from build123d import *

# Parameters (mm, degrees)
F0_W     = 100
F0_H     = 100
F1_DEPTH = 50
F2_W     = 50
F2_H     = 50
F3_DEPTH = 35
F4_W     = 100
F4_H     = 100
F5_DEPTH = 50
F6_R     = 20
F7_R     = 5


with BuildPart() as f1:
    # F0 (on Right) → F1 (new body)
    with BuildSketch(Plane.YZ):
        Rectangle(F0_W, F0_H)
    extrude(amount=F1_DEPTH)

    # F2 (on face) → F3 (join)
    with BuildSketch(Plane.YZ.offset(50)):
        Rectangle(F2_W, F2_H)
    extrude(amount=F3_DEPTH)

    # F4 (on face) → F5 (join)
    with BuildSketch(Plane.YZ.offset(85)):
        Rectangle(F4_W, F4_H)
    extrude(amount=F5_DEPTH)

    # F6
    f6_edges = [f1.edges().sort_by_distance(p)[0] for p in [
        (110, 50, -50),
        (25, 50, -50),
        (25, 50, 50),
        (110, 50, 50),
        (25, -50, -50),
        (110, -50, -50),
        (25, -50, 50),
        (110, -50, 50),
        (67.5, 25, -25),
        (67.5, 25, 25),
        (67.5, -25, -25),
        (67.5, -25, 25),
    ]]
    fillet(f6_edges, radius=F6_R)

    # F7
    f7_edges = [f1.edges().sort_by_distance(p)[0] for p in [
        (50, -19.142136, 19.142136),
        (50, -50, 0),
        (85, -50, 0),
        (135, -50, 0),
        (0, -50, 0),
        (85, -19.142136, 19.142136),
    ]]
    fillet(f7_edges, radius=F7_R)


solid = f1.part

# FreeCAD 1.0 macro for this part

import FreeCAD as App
import Part
import Sketcher

V = App.Vector
Q = App.Units.Quantity


def edges_at(feature, points):
    """Names of the edges that pass closest to the given points."""
    edges = feature.Shape.Edges
    near = lambda p: min(range(len(edges)), key=lambda i: edges[i].distToShape(Part.Vertex(*p))[0])
    return sorted({f"Edge{near(p) + 1}" for p in points})


def add_polygon(sketch, points):
    """Adds a closed chain of lines whose ends are joined by coincident constraints."""
    first, n = sketch.GeometryCount, len(points)
    for a, b in zip(points, points[1:] + points[:1]):
        sketch.addGeometry(Part.LineSegment(App.Vector(*a, 0), App.Vector(*b, 0)), False)
    for i in range(n):
        sketch.addConstraint(Sketcher.Constraint("Coincident", first + i, 2, first + (i + 1) % n, 1))

doc = App.newDocument("Part")
body = doc.addObject("PartDesign::Body", "Body")

# Sketch on YZ plane
sketch1 = body.newObject("Sketcher::SketchObject", "Sketch")
sketch1.AttachmentSupport = (doc.getObject("YZ_Plane"), [""])
sketch1.MapMode = "FlatFace"
add_polygon(sketch1, [(-50, 50), (-50, -50), (50, -50), (50, 50)])  # lines 0-3
sketch1.addConstraint(Sketcher.Constraint("Vertical", 0))
sketch1.addConstraint(Sketcher.Constraint("Horizontal", 1))
sketch1.addConstraint(Sketcher.Constraint("Vertical", 2))
sketch1.addConstraint(Sketcher.Constraint("Horizontal", 3))
sketch1.addConstraint(Sketcher.Constraint("Symmetric", 0, 2, 2, 2, -1, 1))
sketch1.addConstraint(Sketcher.Constraint("Equal", 3, 0))
sketch1.addConstraint(Sketcher.Constraint("DistanceX", 1, 1, 1, 2, Q("100 mm")))
pad1 = body.newObject("PartDesign::Pad", "Pad")
pad1.Profile = sketch1
pad1.Length = 50

# Sketch on YZ plane
sketch2 = body.newObject("Sketcher::SketchObject", "Sketch001")
sketch2.AttachmentSupport = (doc.getObject("YZ_Plane"), [""])
sketch2.MapMode = "FlatFace"
sketch2.AttachmentOffset = App.Placement(V(0, 0, 50), App.Rotation())
add_polygon(sketch2, [(-25, 25), (-25, -25), (25, -25), (25, 25)])  # lines 0-3
sketch2.addConstraint(Sketcher.Constraint("Vertical", 0))
sketch2.addConstraint(Sketcher.Constraint("Horizontal", 1))
sketch2.addConstraint(Sketcher.Constraint("Vertical", 2))
sketch2.addConstraint(Sketcher.Constraint("Horizontal", 3))
sketch2.addConstraint(Sketcher.Constraint("Symmetric", 0, 2, 2, 2, -1, 1))
sketch2.addConstraint(Sketcher.Constraint("Equal", 3, 0))
sketch2.addConstraint(Sketcher.Constraint("DistanceX", 1, 1, 1, 2, Q("50 mm")))
pad2 = body.newObject("PartDesign::Pad", "Pad001")
pad2.Profile = sketch2
pad2.Length = 35

# Sketch on YZ plane
sketch3 = body.newObject("Sketcher::SketchObject", "Sketch002")
sketch3.AttachmentSupport = (doc.getObject("YZ_Plane"), [""])
sketch3.MapMode = "FlatFace"
sketch3.AttachmentOffset = App.Placement(V(0, 0, 85), App.Rotation())
add_polygon(sketch3, [(-50, 50), (-50, -50), (50, -50), (50, 50)])  # lines 0-3
sketch3.addConstraint(Sketcher.Constraint("Vertical", 0))
sketch3.addConstraint(Sketcher.Constraint("Horizontal", 1))
sketch3.addConstraint(Sketcher.Constraint("Vertical", 2))
sketch3.addConstraint(Sketcher.Constraint("Horizontal", 3))
sketch3.addConstraint(Sketcher.Constraint("Symmetric", 0, 2, 2, 2, -1, 1))
sketch3.addConstraint(Sketcher.Constraint("Equal", 3, 0))
sketch3.addConstraint(Sketcher.Constraint("DistanceX", 1, 1, 1, 2, Q("100 mm")))
pad3 = body.newObject("PartDesign::Pad", "Pad002")
pad3.Profile = sketch3
pad3.Length = 50
doc.recompute()

fillet = body.newObject("PartDesign::Fillet", "Fillet")
fillet.Base = (pad3, edges_at(pad3, [
    (110, 50, -50),
    (25, 50, -50),
    (25, 50, 50),
    (110, 50, 50),
    (25, -50, -50),
    (110, -50, -50),
    (25, -50, 50),
    (110, -50, 50),
    (67.5, 25, -25),
    (67.5, 25, 25),
    (67.5, -25, -25),
    (67.5, -25, 25),
]))
fillet.Radius = 20
doc.recompute()

fillet2 = body.newObject("PartDesign::Fillet", "Fillet001")
fillet2.Base = (fillet, edges_at(fillet, [
    (50, -19.142, 19.142),
    (50, -50, 0),
    (85, -50, 0),
    (135, -50, 0),
    (0, -50, 0),
    (85, -19.142, 19.142),
]))
fillet2.Radius = 5

doc.recompute()
